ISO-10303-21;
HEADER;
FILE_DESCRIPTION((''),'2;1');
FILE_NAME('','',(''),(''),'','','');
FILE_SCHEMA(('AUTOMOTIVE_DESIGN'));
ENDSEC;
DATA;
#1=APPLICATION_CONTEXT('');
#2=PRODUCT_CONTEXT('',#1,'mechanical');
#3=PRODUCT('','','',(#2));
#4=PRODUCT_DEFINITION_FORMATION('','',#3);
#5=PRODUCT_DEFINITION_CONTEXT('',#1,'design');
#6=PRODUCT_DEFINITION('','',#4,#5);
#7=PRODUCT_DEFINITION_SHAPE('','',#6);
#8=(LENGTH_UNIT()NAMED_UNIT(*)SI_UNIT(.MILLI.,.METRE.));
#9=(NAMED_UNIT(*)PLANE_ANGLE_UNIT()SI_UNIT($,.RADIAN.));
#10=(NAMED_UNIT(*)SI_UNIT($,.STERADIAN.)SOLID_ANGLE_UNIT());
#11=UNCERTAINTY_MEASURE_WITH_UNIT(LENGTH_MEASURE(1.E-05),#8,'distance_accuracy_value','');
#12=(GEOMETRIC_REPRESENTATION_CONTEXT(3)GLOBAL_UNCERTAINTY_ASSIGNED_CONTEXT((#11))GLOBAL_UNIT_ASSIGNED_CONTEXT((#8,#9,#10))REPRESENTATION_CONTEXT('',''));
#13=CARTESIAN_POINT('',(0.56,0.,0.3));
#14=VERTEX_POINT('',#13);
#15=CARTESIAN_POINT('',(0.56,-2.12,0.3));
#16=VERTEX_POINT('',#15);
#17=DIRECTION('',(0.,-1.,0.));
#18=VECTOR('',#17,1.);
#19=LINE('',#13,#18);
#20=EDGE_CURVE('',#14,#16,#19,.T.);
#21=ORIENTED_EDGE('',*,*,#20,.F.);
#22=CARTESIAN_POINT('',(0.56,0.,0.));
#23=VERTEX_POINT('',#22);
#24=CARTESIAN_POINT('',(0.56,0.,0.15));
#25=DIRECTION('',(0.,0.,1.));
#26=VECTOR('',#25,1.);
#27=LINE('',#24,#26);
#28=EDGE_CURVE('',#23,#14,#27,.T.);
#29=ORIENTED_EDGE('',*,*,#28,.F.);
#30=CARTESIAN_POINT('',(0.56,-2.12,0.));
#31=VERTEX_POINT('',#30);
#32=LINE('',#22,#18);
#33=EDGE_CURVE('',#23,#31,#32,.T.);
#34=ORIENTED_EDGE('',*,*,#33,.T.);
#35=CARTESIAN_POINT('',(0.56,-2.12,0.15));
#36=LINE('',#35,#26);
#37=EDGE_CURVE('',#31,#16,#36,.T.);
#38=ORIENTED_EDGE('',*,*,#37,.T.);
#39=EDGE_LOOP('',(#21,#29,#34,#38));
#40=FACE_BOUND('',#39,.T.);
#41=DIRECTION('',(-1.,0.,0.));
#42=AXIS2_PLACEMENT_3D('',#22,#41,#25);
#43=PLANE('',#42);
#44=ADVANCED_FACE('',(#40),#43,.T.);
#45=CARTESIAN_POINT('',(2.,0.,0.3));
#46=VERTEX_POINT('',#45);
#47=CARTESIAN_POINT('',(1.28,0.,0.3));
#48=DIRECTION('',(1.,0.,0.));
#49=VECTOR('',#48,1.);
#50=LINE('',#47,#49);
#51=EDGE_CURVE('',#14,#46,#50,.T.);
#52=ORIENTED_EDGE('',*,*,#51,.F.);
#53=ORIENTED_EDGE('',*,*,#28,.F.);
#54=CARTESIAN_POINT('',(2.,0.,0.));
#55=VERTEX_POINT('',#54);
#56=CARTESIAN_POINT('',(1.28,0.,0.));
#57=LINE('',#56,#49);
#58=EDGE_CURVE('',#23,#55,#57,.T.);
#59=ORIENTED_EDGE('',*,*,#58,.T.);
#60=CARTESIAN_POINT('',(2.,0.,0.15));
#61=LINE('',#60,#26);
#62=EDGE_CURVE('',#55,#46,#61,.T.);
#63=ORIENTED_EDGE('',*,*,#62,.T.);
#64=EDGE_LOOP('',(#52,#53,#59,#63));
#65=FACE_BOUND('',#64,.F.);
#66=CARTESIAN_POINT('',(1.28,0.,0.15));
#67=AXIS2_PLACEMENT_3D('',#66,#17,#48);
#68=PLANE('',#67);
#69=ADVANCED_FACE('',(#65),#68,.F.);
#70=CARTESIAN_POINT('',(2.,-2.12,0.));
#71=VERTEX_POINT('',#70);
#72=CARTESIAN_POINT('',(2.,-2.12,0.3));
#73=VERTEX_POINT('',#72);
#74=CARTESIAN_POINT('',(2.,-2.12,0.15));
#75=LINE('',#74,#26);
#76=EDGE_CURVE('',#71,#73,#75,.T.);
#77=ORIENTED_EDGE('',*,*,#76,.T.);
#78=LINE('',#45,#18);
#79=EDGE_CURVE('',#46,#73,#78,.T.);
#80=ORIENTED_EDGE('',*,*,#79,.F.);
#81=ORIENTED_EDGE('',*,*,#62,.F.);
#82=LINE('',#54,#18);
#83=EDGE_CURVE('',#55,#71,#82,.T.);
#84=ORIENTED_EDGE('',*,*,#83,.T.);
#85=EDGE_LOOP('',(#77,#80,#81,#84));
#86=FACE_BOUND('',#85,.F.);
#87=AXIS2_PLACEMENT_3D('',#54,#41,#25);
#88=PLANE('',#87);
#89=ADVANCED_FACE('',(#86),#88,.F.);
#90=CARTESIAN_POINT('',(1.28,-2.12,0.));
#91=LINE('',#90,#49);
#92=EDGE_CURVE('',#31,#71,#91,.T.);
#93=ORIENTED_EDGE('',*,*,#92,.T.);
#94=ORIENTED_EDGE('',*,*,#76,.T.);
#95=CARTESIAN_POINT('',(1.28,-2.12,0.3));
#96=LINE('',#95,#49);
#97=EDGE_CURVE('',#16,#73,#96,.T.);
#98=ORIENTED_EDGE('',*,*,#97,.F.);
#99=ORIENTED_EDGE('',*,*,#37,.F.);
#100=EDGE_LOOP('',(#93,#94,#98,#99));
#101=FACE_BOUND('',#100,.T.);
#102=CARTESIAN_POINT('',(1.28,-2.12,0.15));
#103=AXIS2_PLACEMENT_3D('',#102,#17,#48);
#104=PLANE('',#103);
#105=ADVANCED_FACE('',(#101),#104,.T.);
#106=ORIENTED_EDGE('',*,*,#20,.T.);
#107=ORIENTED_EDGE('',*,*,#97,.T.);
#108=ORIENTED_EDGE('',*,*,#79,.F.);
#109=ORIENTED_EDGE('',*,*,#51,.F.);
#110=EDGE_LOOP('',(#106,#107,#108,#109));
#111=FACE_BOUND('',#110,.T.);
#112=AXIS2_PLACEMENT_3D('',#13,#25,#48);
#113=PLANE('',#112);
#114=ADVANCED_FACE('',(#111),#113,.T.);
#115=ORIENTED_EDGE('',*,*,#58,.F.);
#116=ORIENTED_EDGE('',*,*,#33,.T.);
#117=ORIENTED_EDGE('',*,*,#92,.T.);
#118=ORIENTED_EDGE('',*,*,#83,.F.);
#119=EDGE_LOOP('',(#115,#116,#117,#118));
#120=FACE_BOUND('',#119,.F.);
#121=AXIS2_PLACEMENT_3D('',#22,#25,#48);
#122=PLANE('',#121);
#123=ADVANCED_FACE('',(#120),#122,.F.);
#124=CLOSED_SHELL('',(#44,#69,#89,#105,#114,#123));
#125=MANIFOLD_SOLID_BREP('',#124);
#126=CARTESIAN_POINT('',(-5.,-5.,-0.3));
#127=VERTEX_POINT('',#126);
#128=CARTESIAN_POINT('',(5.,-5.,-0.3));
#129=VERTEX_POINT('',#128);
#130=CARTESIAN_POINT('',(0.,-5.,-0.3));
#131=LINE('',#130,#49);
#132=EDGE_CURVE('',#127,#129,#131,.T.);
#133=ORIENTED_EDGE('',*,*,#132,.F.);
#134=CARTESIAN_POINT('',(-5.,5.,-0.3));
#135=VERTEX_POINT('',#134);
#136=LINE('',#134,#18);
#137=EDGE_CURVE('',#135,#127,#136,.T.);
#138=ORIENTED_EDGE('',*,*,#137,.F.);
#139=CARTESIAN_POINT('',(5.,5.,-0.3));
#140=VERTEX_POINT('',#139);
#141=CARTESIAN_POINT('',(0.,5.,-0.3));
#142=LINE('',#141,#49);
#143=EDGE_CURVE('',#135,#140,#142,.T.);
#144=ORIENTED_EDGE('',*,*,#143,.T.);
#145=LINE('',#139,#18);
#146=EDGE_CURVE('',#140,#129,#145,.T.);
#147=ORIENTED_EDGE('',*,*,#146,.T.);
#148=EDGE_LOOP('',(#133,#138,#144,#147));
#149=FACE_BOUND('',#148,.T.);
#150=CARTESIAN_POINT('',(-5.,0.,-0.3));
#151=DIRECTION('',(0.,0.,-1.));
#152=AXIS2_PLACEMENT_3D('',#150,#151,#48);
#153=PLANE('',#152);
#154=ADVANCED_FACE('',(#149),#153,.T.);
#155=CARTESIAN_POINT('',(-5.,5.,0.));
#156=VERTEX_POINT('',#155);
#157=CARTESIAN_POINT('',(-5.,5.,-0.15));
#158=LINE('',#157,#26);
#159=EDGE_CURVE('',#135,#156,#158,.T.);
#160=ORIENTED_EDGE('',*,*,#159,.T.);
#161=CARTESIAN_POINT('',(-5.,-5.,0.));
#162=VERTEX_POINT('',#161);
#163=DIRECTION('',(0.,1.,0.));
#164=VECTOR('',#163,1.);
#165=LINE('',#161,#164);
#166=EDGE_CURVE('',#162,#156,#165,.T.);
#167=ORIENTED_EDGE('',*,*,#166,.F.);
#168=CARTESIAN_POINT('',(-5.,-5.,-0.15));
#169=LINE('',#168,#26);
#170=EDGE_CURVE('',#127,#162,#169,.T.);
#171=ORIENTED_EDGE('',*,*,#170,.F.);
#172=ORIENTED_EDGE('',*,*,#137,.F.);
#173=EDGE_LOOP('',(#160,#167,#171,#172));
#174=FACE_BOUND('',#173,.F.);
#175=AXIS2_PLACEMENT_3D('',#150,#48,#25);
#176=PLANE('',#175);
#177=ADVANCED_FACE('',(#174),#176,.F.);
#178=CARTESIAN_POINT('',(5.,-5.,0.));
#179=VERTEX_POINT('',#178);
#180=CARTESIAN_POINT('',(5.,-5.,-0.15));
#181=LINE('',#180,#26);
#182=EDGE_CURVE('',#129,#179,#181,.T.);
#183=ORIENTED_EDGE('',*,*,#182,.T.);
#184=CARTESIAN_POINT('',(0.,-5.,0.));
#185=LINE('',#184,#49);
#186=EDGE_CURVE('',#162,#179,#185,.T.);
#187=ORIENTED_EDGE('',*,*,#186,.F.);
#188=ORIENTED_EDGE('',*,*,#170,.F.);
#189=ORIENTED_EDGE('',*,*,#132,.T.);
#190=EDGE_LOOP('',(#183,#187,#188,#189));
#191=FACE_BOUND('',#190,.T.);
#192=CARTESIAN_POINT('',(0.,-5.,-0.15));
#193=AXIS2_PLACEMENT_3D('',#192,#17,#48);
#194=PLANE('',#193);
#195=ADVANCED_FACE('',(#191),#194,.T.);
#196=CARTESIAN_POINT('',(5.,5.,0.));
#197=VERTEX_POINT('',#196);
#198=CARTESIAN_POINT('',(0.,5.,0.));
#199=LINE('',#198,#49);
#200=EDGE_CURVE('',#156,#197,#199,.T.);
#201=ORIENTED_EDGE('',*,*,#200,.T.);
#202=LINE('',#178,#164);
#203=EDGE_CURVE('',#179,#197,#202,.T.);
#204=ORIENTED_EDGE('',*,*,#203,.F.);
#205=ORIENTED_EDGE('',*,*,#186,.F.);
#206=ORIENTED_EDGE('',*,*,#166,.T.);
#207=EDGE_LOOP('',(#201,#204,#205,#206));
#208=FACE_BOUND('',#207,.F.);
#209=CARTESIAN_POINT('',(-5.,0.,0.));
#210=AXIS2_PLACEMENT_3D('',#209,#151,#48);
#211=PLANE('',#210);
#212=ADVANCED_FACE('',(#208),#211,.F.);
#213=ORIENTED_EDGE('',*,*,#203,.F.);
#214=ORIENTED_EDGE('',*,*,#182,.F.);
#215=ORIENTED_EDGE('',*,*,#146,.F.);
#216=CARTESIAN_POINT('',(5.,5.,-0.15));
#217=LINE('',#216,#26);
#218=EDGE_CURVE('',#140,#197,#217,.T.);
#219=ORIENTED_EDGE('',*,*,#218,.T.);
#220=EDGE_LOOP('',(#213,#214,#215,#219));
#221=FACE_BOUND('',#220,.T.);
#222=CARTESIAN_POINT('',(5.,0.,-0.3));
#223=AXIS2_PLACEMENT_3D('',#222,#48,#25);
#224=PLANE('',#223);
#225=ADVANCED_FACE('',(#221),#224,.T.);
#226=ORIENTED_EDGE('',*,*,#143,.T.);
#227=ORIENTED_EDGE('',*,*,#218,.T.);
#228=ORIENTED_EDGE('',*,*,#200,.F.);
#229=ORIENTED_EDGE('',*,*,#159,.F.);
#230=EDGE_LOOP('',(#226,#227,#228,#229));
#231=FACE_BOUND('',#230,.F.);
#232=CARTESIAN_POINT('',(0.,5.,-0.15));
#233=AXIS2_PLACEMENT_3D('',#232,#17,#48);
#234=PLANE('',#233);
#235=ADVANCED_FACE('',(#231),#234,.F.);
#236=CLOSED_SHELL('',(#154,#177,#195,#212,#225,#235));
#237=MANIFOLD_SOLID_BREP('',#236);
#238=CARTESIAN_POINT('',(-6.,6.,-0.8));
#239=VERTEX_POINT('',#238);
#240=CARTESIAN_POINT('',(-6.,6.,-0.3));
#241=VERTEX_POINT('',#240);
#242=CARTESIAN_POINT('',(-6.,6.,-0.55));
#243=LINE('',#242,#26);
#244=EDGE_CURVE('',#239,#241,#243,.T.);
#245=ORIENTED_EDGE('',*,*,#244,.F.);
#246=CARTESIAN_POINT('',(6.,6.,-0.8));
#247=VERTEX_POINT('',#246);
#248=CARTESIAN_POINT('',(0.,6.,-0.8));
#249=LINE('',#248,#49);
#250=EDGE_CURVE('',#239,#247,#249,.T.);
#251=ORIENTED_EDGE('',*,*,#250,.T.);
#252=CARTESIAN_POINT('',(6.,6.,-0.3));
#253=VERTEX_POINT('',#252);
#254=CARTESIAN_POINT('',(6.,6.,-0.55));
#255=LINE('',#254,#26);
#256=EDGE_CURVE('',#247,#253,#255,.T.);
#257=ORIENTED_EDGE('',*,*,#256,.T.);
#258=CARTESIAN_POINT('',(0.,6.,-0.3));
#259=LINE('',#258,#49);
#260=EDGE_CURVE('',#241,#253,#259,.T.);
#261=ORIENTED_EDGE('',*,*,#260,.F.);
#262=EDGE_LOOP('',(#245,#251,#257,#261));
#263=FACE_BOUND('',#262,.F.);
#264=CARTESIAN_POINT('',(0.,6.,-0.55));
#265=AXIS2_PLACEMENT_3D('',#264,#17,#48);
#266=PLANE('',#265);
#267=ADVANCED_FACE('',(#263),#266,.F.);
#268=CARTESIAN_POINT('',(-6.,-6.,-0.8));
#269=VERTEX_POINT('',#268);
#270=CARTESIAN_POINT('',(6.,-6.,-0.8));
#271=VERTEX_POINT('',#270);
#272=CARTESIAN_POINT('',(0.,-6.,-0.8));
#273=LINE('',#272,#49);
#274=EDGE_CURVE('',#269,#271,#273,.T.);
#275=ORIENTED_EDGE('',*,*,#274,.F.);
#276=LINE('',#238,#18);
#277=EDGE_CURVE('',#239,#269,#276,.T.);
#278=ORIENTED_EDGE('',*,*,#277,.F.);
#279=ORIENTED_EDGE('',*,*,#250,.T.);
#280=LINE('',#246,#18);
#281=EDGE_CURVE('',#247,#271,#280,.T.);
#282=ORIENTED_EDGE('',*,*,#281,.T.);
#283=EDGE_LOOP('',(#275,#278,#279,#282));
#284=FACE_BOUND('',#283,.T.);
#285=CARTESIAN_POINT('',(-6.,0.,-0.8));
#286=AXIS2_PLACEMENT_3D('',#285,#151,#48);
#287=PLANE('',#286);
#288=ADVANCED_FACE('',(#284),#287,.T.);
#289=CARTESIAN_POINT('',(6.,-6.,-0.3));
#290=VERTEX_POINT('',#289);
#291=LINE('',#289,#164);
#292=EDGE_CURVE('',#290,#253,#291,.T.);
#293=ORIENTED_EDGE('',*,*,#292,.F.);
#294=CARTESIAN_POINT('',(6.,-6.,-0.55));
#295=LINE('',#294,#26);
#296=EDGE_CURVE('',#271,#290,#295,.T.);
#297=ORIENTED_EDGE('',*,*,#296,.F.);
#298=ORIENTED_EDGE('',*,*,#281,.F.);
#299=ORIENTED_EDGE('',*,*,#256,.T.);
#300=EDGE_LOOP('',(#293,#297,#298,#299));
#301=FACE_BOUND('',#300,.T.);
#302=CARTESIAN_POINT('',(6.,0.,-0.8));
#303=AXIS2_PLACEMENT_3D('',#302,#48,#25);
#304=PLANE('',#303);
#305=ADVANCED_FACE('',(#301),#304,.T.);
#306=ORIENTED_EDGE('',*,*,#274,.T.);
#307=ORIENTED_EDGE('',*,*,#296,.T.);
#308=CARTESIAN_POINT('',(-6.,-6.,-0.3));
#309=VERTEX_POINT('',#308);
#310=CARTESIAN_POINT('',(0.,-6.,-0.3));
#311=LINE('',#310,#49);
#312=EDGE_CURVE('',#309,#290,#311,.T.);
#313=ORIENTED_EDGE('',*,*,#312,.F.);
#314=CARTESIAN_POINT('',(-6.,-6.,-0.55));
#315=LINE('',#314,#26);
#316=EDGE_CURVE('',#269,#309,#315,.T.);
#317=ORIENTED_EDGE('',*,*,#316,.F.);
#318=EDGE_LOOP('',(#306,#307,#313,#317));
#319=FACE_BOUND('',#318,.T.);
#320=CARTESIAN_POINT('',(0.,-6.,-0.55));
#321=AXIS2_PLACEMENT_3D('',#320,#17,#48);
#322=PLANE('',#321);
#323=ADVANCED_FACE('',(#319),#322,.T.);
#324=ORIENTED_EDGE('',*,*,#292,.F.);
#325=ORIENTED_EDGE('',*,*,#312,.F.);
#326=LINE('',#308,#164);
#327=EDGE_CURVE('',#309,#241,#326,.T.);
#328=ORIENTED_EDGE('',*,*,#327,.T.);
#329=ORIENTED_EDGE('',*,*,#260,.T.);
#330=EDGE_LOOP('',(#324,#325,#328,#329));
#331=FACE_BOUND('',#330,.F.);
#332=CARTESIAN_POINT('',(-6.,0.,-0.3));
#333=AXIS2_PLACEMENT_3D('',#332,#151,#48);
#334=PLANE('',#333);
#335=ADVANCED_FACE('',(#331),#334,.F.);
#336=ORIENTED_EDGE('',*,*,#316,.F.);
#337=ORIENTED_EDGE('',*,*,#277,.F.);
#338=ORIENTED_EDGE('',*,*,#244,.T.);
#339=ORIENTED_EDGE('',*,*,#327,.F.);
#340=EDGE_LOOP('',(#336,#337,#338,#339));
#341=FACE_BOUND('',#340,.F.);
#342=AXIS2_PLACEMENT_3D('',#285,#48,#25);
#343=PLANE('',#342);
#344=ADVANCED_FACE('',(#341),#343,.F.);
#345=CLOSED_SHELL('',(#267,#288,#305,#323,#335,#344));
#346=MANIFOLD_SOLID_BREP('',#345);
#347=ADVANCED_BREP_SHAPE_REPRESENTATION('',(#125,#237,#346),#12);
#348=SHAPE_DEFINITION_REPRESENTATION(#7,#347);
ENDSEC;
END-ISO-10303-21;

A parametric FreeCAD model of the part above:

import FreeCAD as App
import Part
import Sketcher

V = App.Vector
Q = App.Units.Quantity

doc = App.newDocument("Part")
params = doc.addObject("Spreadsheet::Sheet", "Params")
for row, (alias, value) in enumerate([
    ("sketch1_width", "10 mm"),
    ("sketch1_height", "0.3 mm"),
    ("pad1_length", "10 mm"),
    ("sketch2_height", "0.3 mm"),
    ("sketch2_width", "1.44 mm"),
    ("pad2_length", "2.12 mm"),
    ("sketch3_width", "12 mm"),
    ("sketch3_height", "0.5 mm"),
    ("pad3_length", "12 mm"),
], start=1):
    params.set(f"A{row}", alias)
    params.set(f"B{row}", "=" + value)
    params.setAlias(f"B{row}", alias)

body = doc.addObject("PartDesign::Body", "Body")

# Sketch on XZ plane
sketch1 = doc.addObject("Sketcher::SketchObject", "Sketch")
body.addObject(sketch1)
sketch1.AttachmentSupport = (doc.XZ_Plane, [""])
sketch1.MapMode = "FlatFace"
sketch1.addGeometry([
    Part.LineSegment(V(-5, 0, 0), V(-5, -0.3, 0)),
    Part.LineSegment(V(-5, -0.3, 0), V(5, -0.3, 0)),
    Part.LineSegment(V(5, -0.3, 0), V(5, 0, 0)),
    Part.LineSegment(V(5, 0, 0), V(-5, 0, 0)),
], False)
sketch1.addConstraint([
    Sketcher.Constraint("Coincident", 0, 2, 1, 1),
    Sketcher.Constraint("Coincident", 1, 2, 2, 1),
    Sketcher.Constraint("Coincident", 2, 2, 3, 1),
    Sketcher.Constraint("Coincident", 3, 2, 0, 1),
    Sketcher.Constraint("Vertical", 0),
    Sketcher.Constraint("Horizontal", 1),
    Sketcher.Constraint("Vertical", 2),
    Sketcher.Constraint("Horizontal", 3),
    Sketcher.Constraint("Symmetric", 2, 2, 3, 2, -1, 1),
    Sketcher.Constraint("DistanceX", 1, 1, 1, 2, Q("10 mm")),
    Sketcher.Constraint("DistanceY", 0, 2, 0, 1, Q("0.3 mm")),
])
sketch1.setExpression("Constraints[9]", "Params.sketch1_width")
sketch1.setExpression("Constraints[10]", "Params.sketch1_height")
pad1 = doc.addObject("PartDesign::Pad", "Pad")
body.addObject(pad1)
pad1.Profile = sketch1
pad1.setExpression("Length", "Params.pad1_length")
pad1.Midplane = True
body2 = doc.addObject("PartDesign::Body", "Body001")

# Sketch on XZ plane
sketch2 = doc.addObject("Sketcher::SketchObject", "Sketch001")
body2.addObject(sketch2)
sketch2.AttachmentSupport = (doc.getObject("XZ_Plane001"), [""])
sketch2.MapMode = "FlatFace"
sketch2.addGeometry([
    Part.LineSegment(V(0.56, 0.3, 0), V(0.56, 0, 0)),
    Part.LineSegment(V(0.56, 0, 0), V(2, 0, 0)),
    Part.LineSegment(V(2, 0, 0), V(2, 0.3, 0)),
    Part.LineSegment(V(2, 0.3, 0), V(0.56, 0.3, 0)),
], False)
sketch2.addConstraint([
    Sketcher.Constraint("Coincident", 0, 2, 1, 1),
    Sketcher.Constraint("Coincident", 1, 2, 2, 1),
    Sketcher.Constraint("Coincident", 2, 2, 3, 1),
    Sketcher.Constraint("Coincident", 3, 2, 0, 1),
    Sketcher.Constraint("Vertical", 0),
    Sketcher.Constraint("Horizontal", 1),
    Sketcher.Constraint("Vertical", 2),
    Sketcher.Constraint("Horizontal", 3),
    Sketcher.Constraint("PointOnObject", 0, 2, -1),
    Sketcher.Constraint("DistanceY", 0, 2, 0, 1, Q("0.3 mm")),
    Sketcher.Constraint("DistanceX", -1, 1, 1, 2, Q("2 mm")),
    Sketcher.Constraint("DistanceX", 1, 1, 1, 2, Q("1.44 mm")),
])
sketch2.setExpression("Constraints[9]", "Params.sketch2_height")
sketch2.setExpression("Constraints[11]", "Params.sketch2_width")
pad2 = doc.addObject("PartDesign::Pad", "Pad001")
body2.addObject(pad2)
pad2.Profile = sketch2
pad2.setExpression("Length", "Params.pad2_length")
body3 = doc.addObject("PartDesign::Body", "Body002")

# Sketch on XZ plane
sketch3 = doc.addObject("Sketcher::SketchObject", "Sketch002")
body3.addObject(sketch3)
sketch3.AttachmentSupport = (doc.getObject("XZ_Plane002"), [""])
sketch3.MapMode = "FlatFace"
sketch3.addGeometry([
    Part.LineSegment(V(-6, -0.3, 0), V(-6, -0.8, 0)),
    Part.LineSegment(V(-6, -0.8, 0), V(6, -0.8, 0)),
    Part.LineSegment(V(6, -0.8, 0), V(6, -0.3, 0)),
    Part.LineSegment(V(6, -0.3, 0), V(-6, -0.3, 0)),
], False)
sketch3.addConstraint([
    Sketcher.Constraint("Coincident", 0, 2, 1, 1),
    Sketcher.Constraint("Coincident", 1, 2, 2, 1),
    Sketcher.Constraint("Coincident", 2, 2, 3, 1),
    Sketcher.Constraint("Coincident", 3, 2, 0, 1),
    Sketcher.Constraint("Vertical", 0),
    Sketcher.Constraint("Horizontal", 1),
    Sketcher.Constraint("Vertical", 2),
    Sketcher.Constraint("Horizontal", 3),
    Sketcher.Constraint("DistanceX", 1, 1, 1, 2, Q("12 mm")),
    Sketcher.Constraint("DistanceY", 0, 2, 0, 1, Q("0.5 mm")),
    Sketcher.Constraint("DistanceX", 0, 2, -1, 1, Q("6 mm")),
    Sketcher.Constraint("DistanceY", 0, 2, -1, 1, Q("0.8 mm")),
])
sketch3.setExpression("Constraints[8]", "Params.sketch3_width")
sketch3.setExpression("Constraints[9]", "Params.sketch3_height")
pad3 = doc.addObject("PartDesign::Pad", "Pad002")
body3.addObject(pad3)
pad3.Profile = sketch3
pad3.setExpression("Length", "Params.pad3_length")
pad3.Midplane = True

doc.recompute()
